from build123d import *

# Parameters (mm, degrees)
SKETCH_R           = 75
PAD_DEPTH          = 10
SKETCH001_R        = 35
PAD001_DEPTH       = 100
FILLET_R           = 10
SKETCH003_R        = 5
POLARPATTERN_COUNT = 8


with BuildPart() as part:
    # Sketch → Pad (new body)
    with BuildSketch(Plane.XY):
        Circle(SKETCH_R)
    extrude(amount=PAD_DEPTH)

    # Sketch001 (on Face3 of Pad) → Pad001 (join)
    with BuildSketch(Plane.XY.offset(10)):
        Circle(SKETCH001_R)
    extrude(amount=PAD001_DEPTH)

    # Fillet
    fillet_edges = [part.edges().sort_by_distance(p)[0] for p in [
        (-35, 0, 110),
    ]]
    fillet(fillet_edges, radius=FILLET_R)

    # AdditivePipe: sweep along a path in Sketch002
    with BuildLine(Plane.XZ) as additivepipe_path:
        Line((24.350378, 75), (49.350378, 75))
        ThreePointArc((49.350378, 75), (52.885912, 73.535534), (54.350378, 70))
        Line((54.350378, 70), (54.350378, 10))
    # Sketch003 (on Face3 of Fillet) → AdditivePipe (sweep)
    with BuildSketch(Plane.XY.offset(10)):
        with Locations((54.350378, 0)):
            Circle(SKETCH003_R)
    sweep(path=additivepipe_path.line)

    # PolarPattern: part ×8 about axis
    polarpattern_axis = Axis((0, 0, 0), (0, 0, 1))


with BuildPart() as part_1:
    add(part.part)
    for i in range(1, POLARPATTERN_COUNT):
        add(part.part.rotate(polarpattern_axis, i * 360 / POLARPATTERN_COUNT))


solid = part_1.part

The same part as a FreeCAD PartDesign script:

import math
import FreeCAD as App
import Part
import Sketcher
from FreeCAD import Vector


def edges_at(feature, points):
    """Names of the edges that pass closest to the given points."""
    edges = feature.Shape.Edges
    near = lambda p: min(range(len(edges)), key=lambda i: edges[i].distToShape(Part.Vertex(*p))[0])
    return sorted({f"Edge{near(p) + 1}" for p in points})

doc = App.newDocument("Part")
body = doc.addObject("PartDesign::Body", "Body")

sketch1 = body.newObject("Sketcher::SketchObject", "Sketch")
sketch1.AttachmentSupport = (doc.getObject("XY_Plane"), [""])
sketch1.MapMode = "FlatFace"
sketch1.addGeometry(Part.Circle(Vector(0, 0, 0), Vector(0, 0, 1), 75), False)
sketch1.addConstraint([
    Sketcher.Constraint("Coincident", 0, 3, -1, 1),
    Sketcher.Constraint("Diameter", 0, 150.0),
])
pad1 = body.newObject("PartDesign::Pad", "Pad")
pad1.Profile = sketch1
pad1.Length = 10

sketch2 = body.newObject("Sketcher::SketchObject", "Sketch001")
sketch2.AttachmentSupport = (doc.getObject("XY_Plane"), [""])
sketch2.MapMode = "FlatFace"
sketch2.AttachmentOffset = App.Placement(Vector(0, 0, 10), App.Rotation())
sketch2.addGeometry(Part.Circle(Vector(0, 0, 0), Vector(0, 0, 1), 35), False)
sketch2.addConstraint([
    Sketcher.Constraint("Coincident", 0, 3, -1, 1),
    Sketcher.Constraint("Diameter", 0, 70.0),
])
pad2 = body.newObject("PartDesign::Pad", "Pad001")
pad2.Profile = sketch2
pad2.Length = 100
doc.recompute()

fillet = body.newObject("PartDesign::Fillet", "Fillet")
fillet.Base = (pad2, edges_at(pad2, [(-35, 0, 110)]))
fillet.Radius = 10

sketch3 = body.newObject("Sketcher::SketchObject", "Sketch002")
sketch3.AttachmentSupport = (doc.getObject("XY_Plane"), [""])
sketch3.MapMode = "FlatFace"
sketch3.AttachmentOffset = App.Placement(Vector(0, 0, 10), App.Rotation())
sketch3.addGeometry(Part.Circle(Vector(54, 0, 0), Vector(0, 0, 1), 5), False)
sketch3.addConstraint([
    Sketcher.Constraint("PointOnObject", 0, 3, -1),
    Sketcher.Constraint("Diameter", 0, 10.0),
    Sketcher.Constraint("DistanceX", -1, 1, 0, 3, 54.350378),
])

sketch4 = body.newObject("Sketcher::SketchObject", "Sketch003")
sketch4.AttachmentSupport = (doc.getObject("XZ_Plane"), [""])
sketch4.MapMode = "FlatFace"
sketch4.addGeometry([
    Part.LineSegment(Vector(24.4, 75, 0), Vector(49.4, 75, 0)),
    Part.ArcOfCircle(Part.Circle(Vector(49.4, 70, 0), Vector(0, 0, 1), 5), math.radians(0), math.radians(90)),
    Part.LineSegment(Vector(54.4, 70, 0), Vector(54.4, 10, 0)),
], False)
sketch4.addConstraint([
    Sketcher.Constraint("Tangent", 0, 2, 1, 2),
    Sketcher.Constraint("Tangent", 1, 1, 2, 1),
    Sketcher.Constraint("Horizontal", 0),
    Sketcher.Constraint("Vertical", 2),
    Sketcher.Constraint("Radius", 1, 5.0),
    Sketcher.Constraint("DistanceX", 0, 1, 0, 2, 25.0),
    Sketcher.Constraint("DistanceY", 2, 2, 2, 1, 60.0),
    Sketcher.Constraint("DistanceY", -1, 1, 1, 3, 70.0),
    Sketcher.Constraint("DistanceX", -1, 1, 1, 3, 49.350378),
])
doc.recompute()

additivepipe = body.newObject("PartDesign::AdditivePipe", "AdditivePipe")
additivepipe.Profile = sketch3
additivepipe.Spine = (sketch4, ["Edge1", "Edge2", "Edge3"])
body2 = doc.addObject("PartDesign::Body", "Body001")
doc.recompute()

body2.BaseFeature = body
doc.recompute()

body3 = doc.addObject("PartDesign::Body", "Body002")
body3.BaseFeature = body
body3.Placement = App.Placement(Vector(0, 0, 0), App.Rotation(Vector(0, 0, 1), 45))
boolean = body2.newObject("PartDesign::Boolean", "Boolean")
boolean.Type = "Fuse"
boolean.addObjects([body3])
doc.recompute()

body4 = doc.addObject("PartDesign::Body", "Body003")
body4.BaseFeature = body
body4.Placement = App.Placement(Vector(0, 0, 0), App.Rotation(Vector(0, 0, 1), 90))
boolean2 = body2.newObject("PartDesign::Boolean", "Boolean001")
boolean2.Type = "Fuse"
boolean2.addObjects([body4])
doc.recompute()

body5 = doc.addObject("PartDesign::Body", "Body004")
body5.BaseFeature = body
body5.Placement = App.Placement(Vector(0, 0, 0), App.Rotation(Vector(0, 0, 1), 135))
boolean3 = body2.newObject("PartDesign::Boolean", "Boolean002")
boolean3.Type = "Fuse"
boolean3.addObjects([body5])
doc.recompute()

body6 = doc.addObject("PartDesign::Body", "Body005")
body6.BaseFeature = body
body6.Placement = App.Placement(Vector(0, 0, 0), App.Rotation(Vector(0, 0, 1), 180))
boolean4 = body2.newObject("PartDesign::Boolean", "Boolean003")
boolean4.Type = "Fuse"
boolean4.addObjects([body6])
doc.recompute()

body7 = doc.addObject("PartDesign::Body", "Body006")
body7.BaseFeature = body
body7.Placement = App.Placement(Vector(0, 0, 0), App.Rotation(Vector(0, 0, 1), 225))
boolean5 = body2.newObject("PartDesign::Boolean", "Boolean004")
boolean5.Type = "Fuse"
boolean5.addObjects([body7])
doc.recompute()

body8 = doc.addObject("PartDesign::Body", "Body007")
body8.BaseFeature = body
body8.Placement = App.Placement(Vector(0, 0, 0), App.Rotation(Vector(0, 0, 1), 270))
boolean6 = body2.newObject("PartDesign::Boolean", "Boolean005")
boolean6.Type = "Fuse"
boolean6.addObjects([body8])
doc.recompute()

body.Placement = App.Placement(Vector(0, 0, 0), App.Rotation(Vector(0, 0, 1), 315))
boolean7 = body2.newObject("PartDesign::Boolean", "Boolean006")
boolean7.Type = "Fuse"
boolean7.addObjects([body])

doc.recompute()
